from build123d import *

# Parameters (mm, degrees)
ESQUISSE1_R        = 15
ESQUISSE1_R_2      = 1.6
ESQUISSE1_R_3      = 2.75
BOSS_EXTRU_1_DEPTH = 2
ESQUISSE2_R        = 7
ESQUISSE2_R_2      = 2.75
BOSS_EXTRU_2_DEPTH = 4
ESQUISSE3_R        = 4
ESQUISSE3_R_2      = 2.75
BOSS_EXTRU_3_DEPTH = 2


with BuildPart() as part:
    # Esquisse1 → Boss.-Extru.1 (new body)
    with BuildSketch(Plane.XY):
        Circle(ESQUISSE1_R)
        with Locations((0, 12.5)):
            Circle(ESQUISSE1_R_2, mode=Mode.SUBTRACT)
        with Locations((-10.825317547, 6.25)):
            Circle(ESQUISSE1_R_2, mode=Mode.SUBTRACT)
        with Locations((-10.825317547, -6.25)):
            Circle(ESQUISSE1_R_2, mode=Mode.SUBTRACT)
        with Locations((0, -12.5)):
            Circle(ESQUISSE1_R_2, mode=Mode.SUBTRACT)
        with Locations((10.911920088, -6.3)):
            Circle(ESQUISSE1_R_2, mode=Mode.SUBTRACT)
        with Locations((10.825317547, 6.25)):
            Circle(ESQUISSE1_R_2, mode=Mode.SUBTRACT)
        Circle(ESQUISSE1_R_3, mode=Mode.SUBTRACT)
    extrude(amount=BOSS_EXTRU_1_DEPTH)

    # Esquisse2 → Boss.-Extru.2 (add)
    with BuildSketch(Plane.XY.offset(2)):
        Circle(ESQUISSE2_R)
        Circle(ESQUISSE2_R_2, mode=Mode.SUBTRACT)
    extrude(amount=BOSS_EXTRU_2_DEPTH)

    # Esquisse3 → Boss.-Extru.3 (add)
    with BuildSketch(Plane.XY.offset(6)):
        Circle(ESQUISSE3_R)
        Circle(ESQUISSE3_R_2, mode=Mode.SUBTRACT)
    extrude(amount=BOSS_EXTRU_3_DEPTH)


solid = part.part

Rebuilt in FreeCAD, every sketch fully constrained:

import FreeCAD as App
import Part
import Sketcher
from FreeCAD import Vector
Q = App.Units.Quantity

doc = App.newDocument("Part")
body = doc.addObject("PartDesign::Body", "Body")

sketch1 = doc.addObject("Sketcher::SketchObject", "Sketch")
body.addObject(sketch1)
sketch1.AttachmentSupport = (doc.XY_Plane, [""])
sketch1.MapMode = "FlatFace"
sketch1.addGeometry([
    Part.Circle(Vector(0, 0, 0), Vector(0, 0, 1), 15),
    Part.Circle(Vector(0, -12.5, 0), Vector(0, 0, 1), 1.6),
    Part.Circle(Vector(-10.8, -6.2, 0), Vector(0, 0, 1), 1.6),
    Part.Circle(Vector(10.9, -6.3, 0), Vector(0, 0, 1), 1.6),
    Part.Circle(Vector(-10.8, 6.2, 0), Vector(0, 0, 1), 1.6),
    Part.Circle(Vector(0, 0, 0), Vector(0, 0, 1), 2.8),
    Part.Circle(Vector(0, 12.5, 0), Vector(0, 0, 1), 1.6),
    Part.Circle(Vector(10.8, 6.2, 0), Vector(0, 0, 1), 1.6),
], False)
sketch1.addConstraint([
    Sketcher.Constraint("Coincident", 0, 3, -1, 1),
    Sketcher.Constraint("Coincident", 5, 3, -1, 1),
    Sketcher.Constraint("Equal", 1, 2),
    Sketcher.Constraint("Equal", 2, 3),
    Sketcher.Constraint("Equal", 3, 4),
    Sketcher.Constraint("Equal", 4, 6),
    Sketcher.Constraint("Equal", 6, 7),
    Sketcher.Constraint("Symmetric", 1, 3, 6, 3, -1, 1),
    Sketcher.Constraint("Symmetric", 2, 3, 7, 3, -1, 1),
    Sketcher.Constraint("Symmetric", 4, 3, 7, 3, -2),
    Sketcher.Constraint("PointOnObject", 1, 3, -2),
    Sketcher.Constraint("Diameter", 0, Q("30 mm")),
    Sketcher.Constraint("Diameter", 1, Q("3.2 mm")),
    Sketcher.Constraint("Diameter", 5, Q("5.5 mm")),
    Sketcher.Constraint("DistanceY", 1, 3, -1, 1, Q("12.5 mm")),
    Sketcher.Constraint("DistanceY", 3, 3, -1, 1, Q("6.3 mm")),
    Sketcher.Constraint("DistanceY", 2, 3, 4, 3, Q("12.5 mm")),
    Sketcher.Constraint("DistanceX", -1, 1, 3, 3, Q("10.91192 mm")),
    Sketcher.Constraint("DistanceX", 2, 3, -1, 1, Q("10.825318 mm")),
])
pad1 = doc.addObject("PartDesign::Pad", "Pad")
body.addObject(pad1)
pad1.Profile = sketch1
pad1.Length = 2

sketch2 = doc.addObject("Sketcher::SketchObject", "Sketch001")
body.addObject(sketch2)
sketch2.AttachmentSupport = (doc.XY_Plane, [""])
sketch2.MapMode = "FlatFace"
sketch2.AttachmentOffset = App.Placement(Vector(0, 0, 2), App.Rotation())
sketch2.addGeometry([
    Part.Circle(Vector(0, 0, 0), Vector(0, 0, 1), 7),
    Part.Circle(Vector(0, 0, 0), Vector(0, 0, 1), 2.8),
], False)
sketch2.addConstraint([
    Sketcher.Constraint("Coincident", 0, 3, -1, 1),
    Sketcher.Constraint("Coincident", 1, 3, -1, 1),
    Sketcher.Constraint("Diameter", 0, Q("14 mm")),
    Sketcher.Constraint("Diameter", 1, Q("5.5 mm")),
])
pad2 = doc.addObject("PartDesign::Pad", "Pad001")
body.addObject(pad2)
pad2.Profile = sketch2
pad2.Length = 4

sketch3 = doc.addObject("Sketcher::SketchObject", "Sketch002")
body.addObject(sketch3)
sketch3.AttachmentSupport = (doc.XY_Plane, [""])
sketch3.MapMode = "FlatFace"
sketch3.AttachmentOffset = App.Placement(Vector(0, 0, 6), App.Rotation())
sketch3.addGeometry([
    Part.Circle(Vector(0, 0, 0), Vector(0, 0, 1), 4),
    Part.Circle(Vector(0, 0, 0), Vector(0, 0, 1), 2.8),
], False)
sketch3.addConstraint([
    Sketcher.Constraint("Coincident", 0, 3, -1, 1),
    Sketcher.Constraint("Coincident", 1, 3, -1, 1),
    Sketcher.Constraint("Diameter", 0, Q("8 mm")),
    Sketcher.Constraint("Diameter", 1, Q("5.5 mm")),
])
pad3 = doc.addObject("PartDesign::Pad", "Pad002")
body.addObject(pad3)
pad3.Profile = sketch3
pad3.Length = 2

doc.recompute()
